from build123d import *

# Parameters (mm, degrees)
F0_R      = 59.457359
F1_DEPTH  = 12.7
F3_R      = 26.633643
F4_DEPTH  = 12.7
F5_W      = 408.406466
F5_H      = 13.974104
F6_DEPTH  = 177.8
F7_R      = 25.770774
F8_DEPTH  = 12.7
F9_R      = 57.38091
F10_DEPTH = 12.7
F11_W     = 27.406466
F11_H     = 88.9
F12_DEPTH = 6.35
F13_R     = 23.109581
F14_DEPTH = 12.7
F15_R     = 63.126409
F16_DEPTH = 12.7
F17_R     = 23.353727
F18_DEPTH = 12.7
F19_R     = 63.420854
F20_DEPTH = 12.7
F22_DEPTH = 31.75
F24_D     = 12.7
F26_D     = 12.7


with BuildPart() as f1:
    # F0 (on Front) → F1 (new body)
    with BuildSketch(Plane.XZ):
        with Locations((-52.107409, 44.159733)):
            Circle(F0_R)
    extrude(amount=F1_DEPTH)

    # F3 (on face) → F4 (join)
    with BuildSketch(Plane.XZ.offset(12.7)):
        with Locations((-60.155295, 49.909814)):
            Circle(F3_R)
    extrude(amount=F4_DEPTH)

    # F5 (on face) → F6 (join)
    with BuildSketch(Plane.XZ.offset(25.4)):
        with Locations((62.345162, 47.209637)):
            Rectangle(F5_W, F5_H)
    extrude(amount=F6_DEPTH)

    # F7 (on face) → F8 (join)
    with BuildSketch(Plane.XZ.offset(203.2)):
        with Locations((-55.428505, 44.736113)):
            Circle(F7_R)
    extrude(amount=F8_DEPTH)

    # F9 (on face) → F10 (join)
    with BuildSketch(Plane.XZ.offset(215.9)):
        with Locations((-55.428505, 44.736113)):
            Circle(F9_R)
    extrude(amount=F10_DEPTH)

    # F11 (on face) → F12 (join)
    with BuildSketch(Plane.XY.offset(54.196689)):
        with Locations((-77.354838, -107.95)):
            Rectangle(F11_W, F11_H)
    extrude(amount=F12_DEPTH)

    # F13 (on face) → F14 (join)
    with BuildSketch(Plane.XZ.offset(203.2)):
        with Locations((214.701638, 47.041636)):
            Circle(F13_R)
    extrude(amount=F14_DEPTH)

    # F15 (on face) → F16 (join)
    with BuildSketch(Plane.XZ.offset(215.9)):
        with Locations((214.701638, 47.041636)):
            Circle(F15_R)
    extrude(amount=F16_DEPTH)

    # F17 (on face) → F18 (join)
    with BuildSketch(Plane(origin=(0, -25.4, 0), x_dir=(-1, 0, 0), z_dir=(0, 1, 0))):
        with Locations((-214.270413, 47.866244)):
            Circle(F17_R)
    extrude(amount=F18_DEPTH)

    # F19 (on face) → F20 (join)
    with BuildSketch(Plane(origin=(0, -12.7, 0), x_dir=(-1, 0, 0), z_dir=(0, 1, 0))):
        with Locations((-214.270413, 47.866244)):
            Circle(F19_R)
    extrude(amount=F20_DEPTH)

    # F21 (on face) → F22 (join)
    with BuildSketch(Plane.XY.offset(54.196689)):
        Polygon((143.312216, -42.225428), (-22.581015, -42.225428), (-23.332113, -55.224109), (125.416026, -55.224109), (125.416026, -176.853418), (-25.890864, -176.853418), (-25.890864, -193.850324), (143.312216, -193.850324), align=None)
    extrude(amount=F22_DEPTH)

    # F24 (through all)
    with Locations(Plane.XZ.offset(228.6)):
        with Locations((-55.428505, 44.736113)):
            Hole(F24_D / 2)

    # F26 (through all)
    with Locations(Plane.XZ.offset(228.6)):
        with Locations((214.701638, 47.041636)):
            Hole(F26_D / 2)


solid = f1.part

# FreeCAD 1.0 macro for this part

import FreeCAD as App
import Part
import Sketcher
Q = App.Units.Quantity


def add_polygon(sketch, points):
    """Adds a closed chain of lines whose ends are joined by coincident constraints."""
    first, n = sketch.GeometryCount, len(points)
    for a, b in zip(points, points[1:] + points[:1]):
        sketch.addGeometry(Part.LineSegment(App.Vector(*a, 0), App.Vector(*b, 0)), False)
    for i in range(n):
        sketch.addConstraint(Sketcher.Constraint("Coincident", first + i, 2, first + (i + 1) % n, 1))

doc = App.newDocument("Part")
body = doc.addObject("PartDesign::Body", "Body")

# Sketch on XZ plane
sketch1 = body.newObject("Sketcher::SketchObject", "Sketch")
sketch1.AttachmentSupport = (doc.getObject("XZ_Plane"), [""])
sketch1.MapMode = "FlatFace"
sketch1.addGeometry(Part.Circle(App.Vector(-52, 44, 0), App.Vector(0, 0, 1), 59), False)
sketch1.addConstraint([
    Sketcher.Constraint("Diameter", 0, Q("118.914718 mm")),
    Sketcher.Constraint("DistanceX", 0, 3, -1, 1, Q("52.107409 mm")),
    Sketcher.Constraint("DistanceY", -1, 1, 0, 3, Q("44.159733 mm")),
])
pad1 = body.newObject("PartDesign::Pad", "Pad")
pad1.Profile = sketch1
pad1.Length = Q("0.5 in")

# Sketch on XZ plane
sketch2 = body.newObject("Sketcher::SketchObject", "Sketch001")
sketch2.AttachmentSupport = (doc.getObject("XZ_Plane"), [""])
sketch2.MapMode = "FlatFace"
sketch2.AttachmentOffset = App.Placement(App.Vector(0, 0, 0.5 * 25.4), App.Rotation())
sketch2.addGeometry(Part.Circle(App.Vector(-60, 50, 0), App.Vector(0, 0, 1), 27), False)
sketch2.addConstraint([
    Sketcher.Constraint("Diameter", 0, Q("53.267286 mm")),
    Sketcher.Constraint("DistanceX", 0, 3, -1, 1, Q("60.155295 mm")),
    Sketcher.Constraint("DistanceY", -1, 1, 0, 3, Q("49.909814 mm")),
])
pad2 = body.newObject("PartDesign::Pad", "Pad001")
pad2.Profile = sketch2
pad2.Length = Q("0.5 in")

# Sketch on XZ plane
sketch3 = body.newObject("Sketcher::SketchObject", "Sketch002")
sketch3.AttachmentSupport = (doc.getObject("XZ_Plane"), [""])
sketch3.MapMode = "FlatFace"
sketch3.AttachmentOffset = App.Placement(App.Vector(0, 0, 1 * 25.4), App.Rotation())
add_polygon(sketch3, [(-142, 54), (-142, 40), (267, 40), (267, 54)])  # lines 0-3
sketch3.addConstraint([
    Sketcher.Constraint("Vertical", 0),
    Sketcher.Constraint("Horizontal", 1),
    Sketcher.Constraint("Vertical", 2),
    Sketcher.Constraint("Horizontal", 3),
    Sketcher.Constraint("DistanceX", 1, 1, 1, 2, Q("408.406466 mm")),
    Sketcher.Constraint("DistanceY", 0, 2, 0, 1, Q("13.974104 mm")),
    Sketcher.Constraint("DistanceX", 0, 2, -1, 1, Q("141.858071 mm")),
    Sketcher.Constraint("DistanceY", -1, 1, 2, 2, Q("54.196689 mm")),
])
pad3 = body.newObject("PartDesign::Pad", "Pad002")
pad3.Profile = sketch3
pad3.Length = Q("7 in")

# Sketch on XZ plane
sketch4 = body.newObject("Sketcher::SketchObject", "Sketch003")
sketch4.AttachmentSupport = (doc.getObject("XZ_Plane"), [""])
sketch4.MapMode = "FlatFace"
sketch4.AttachmentOffset = App.Placement(App.Vector(0, 0, 8 * 25.4), App.Rotation())
sketch4.addGeometry(Part.Circle(App.Vector(-55, 45, 0), App.Vector(0, 0, 1), 26), False)
sketch4.addConstraint([
    Sketcher.Constraint("Diameter", 0, Q("51.541548 mm")),
    Sketcher.Constraint("DistanceX", 0, 3, -1, 1, Q("55.428505 mm")),
    Sketcher.Constraint("DistanceY", -1, 1, 0, 3, Q("44.736113 mm")),
])
pad4 = body.newObject("PartDesign::Pad", "Pad003")
pad4.Profile = sketch4
pad4.Length = Q("0.5 in")

# Sketch on XZ plane
sketch5 = body.newObject("Sketcher::SketchObject", "Sketch004")
sketch5.AttachmentSupport = (doc.getObject("XZ_Plane"), [""])
sketch5.MapMode = "FlatFace"
sketch5.AttachmentOffset = App.Placement(App.Vector(0, 0, 8.5 * 25.4), App.Rotation())
sketch5.addGeometry(Part.Circle(App.Vector(-55, 45, 0), App.Vector(0, 0, 1), 57), False)
sketch5.addConstraint([
    Sketcher.Constraint("Diameter", 0, Q("114.76182 mm")),
    Sketcher.Constraint("DistanceX", 0, 3, -1, 1, Q("55.428505 mm")),
    Sketcher.Constraint("DistanceY", -1, 1, 0, 3, Q("44.736113 mm")),
])
pad5 = body.newObject("PartDesign::Pad", "Pad004")
pad5.Profile = sketch5
pad5.Length = Q("0.5 in")

# Sketch on XY plane
sketch6 = body.newObject("Sketcher::SketchObject", "Sketch005")
sketch6.AttachmentSupport = (doc.getObject("XY_Plane"), [""])
sketch6.MapMode = "FlatFace"
sketch6.AttachmentOffset = App.Placement(App.Vector(0, 0, 54.196689), App.Rotation())
add_polygon(sketch6, [(-91, -64), (-91, -152), (-64, -152), (-64, -64)])  # lines 0-3
sketch6.addConstraint([
    Sketcher.Constraint("Vertical", 0),
    Sketcher.Constraint("Horizontal", 1),
    Sketcher.Constraint("Vertical", 2),
    Sketcher.Constraint("Horizontal", 3),
    Sketcher.Constraint("DistanceY", 0, 2, 0, 1, Q("3.5 in")),
    Sketcher.Constraint("DistanceY", 0, 2, -1, 1, Q("6 in")),
    Sketcher.Constraint("DistanceX", 1, 1, 1, 2, Q("27.406466 mm")),
    Sketcher.Constraint("DistanceX", 0, 2, -1, 1, Q("91.058071 mm")),
])
pad6 = body.newObject("PartDesign::Pad", "Pad005")
pad6.Profile = sketch6
pad6.Length = Q("0.25 in")

# Sketch on XZ plane
sketch7 = body.newObject("Sketcher::SketchObject", "Sketch006")
sketch7.AttachmentSupport = (doc.getObject("XZ_Plane"), [""])
sketch7.MapMode = "FlatFace"
sketch7.AttachmentOffset = App.Placement(App.Vector(0, 0, 8 * 25.4), App.Rotation())
sketch7.addGeometry(Part.Circle(App.Vector(215, 47, 0), App.Vector(0, 0, 1), 23), False)
sketch7.addConstraint([
    Sketcher.Constraint("Diameter", 0, Q("46.219162 mm")),
    Sketcher.Constraint("DistanceX", -1, 1, 0, 3, Q("214.701638 mm")),
    Sketcher.Constraint("DistanceY", -1, 1, 0, 3, Q("47.041636 mm")),
])
pad7 = body.newObject("PartDesign::Pad", "Pad006")
pad7.Profile = sketch7
pad7.Length = Q("0.5 in")

# Sketch on XZ plane
sketch8 = body.newObject("Sketcher::SketchObject", "Sketch007")
sketch8.AttachmentSupport = (doc.getObject("XZ_Plane"), [""])
sketch8.MapMode = "FlatFace"
sketch8.AttachmentOffset = App.Placement(App.Vector(0, 0, 8.5 * 25.4), App.Rotation())
sketch8.addGeometry(Part.Circle(App.Vector(215, 47, 0), App.Vector(0, 0, 1), 63), False)
sketch8.addConstraint([
    Sketcher.Constraint("Diameter", 0, Q("126.252818 mm")),
    Sketcher.Constraint("DistanceX", -1, 1, 0, 3, Q("214.701638 mm")),
    Sketcher.Constraint("DistanceY", -1, 1, 0, 3, Q("47.041636 mm")),
])
pad8 = body.newObject("PartDesign::Pad", "Pad007")
pad8.Profile = sketch8
pad8.Length = Q("0.5 in")

# Sketch on XZ plane
sketch9 = body.newObject("Sketcher::SketchObject", "Sketch008")
sketch9.AttachmentSupport = (doc.getObject("XZ_Plane"), [""])
sketch9.MapMode = "FlatFace"
sketch9.AttachmentOffset = App.Placement(App.Vector(0, 0, 1 * 25.4), App.Rotation())
sketch9.addGeometry(Part.Circle(App.Vector(214, 48, 0), App.Vector(0, 0, 1), 23), False)
sketch9.addConstraint([
    Sketcher.Constraint("Diameter", 0, Q("46.707454 mm")),
    Sketcher.Constraint("DistanceX", -1, 1, 0, 3, Q("214.270413 mm")),
    Sketcher.Constraint("DistanceY", -1, 1, 0, 3, Q("47.866244 mm")),
])
pad9 = body.newObject("PartDesign::Pad", "Pad008")
pad9.Profile = sketch9
pad9.Length = Q("0.5 in")
pad9.Reversed = True

# Sketch on XZ plane
sketch10 = body.newObject("Sketcher::SketchObject", "Sketch009")
sketch10.AttachmentSupport = (doc.getObject("XZ_Plane"), [""])
sketch10.MapMode = "FlatFace"
sketch10.AttachmentOffset = App.Placement(App.Vector(0, 0, 0.5 * 25.4), App.Rotation())
sketch10.addGeometry(Part.Circle(App.Vector(214, 48, 0), App.Vector(0, 0, 1), 63), False)
sketch10.addConstraint([
    Sketcher.Constraint("Diameter", 0, Q("126.841708 mm")),
    Sketcher.Constraint("DistanceX", -1, 1, 0, 3, Q("214.270413 mm")),
    Sketcher.Constraint("DistanceY", -1, 1, 0, 3, Q("47.866244 mm")),
])
pad10 = body.newObject("PartDesign::Pad", "Pad009")
pad10.Profile = sketch10
pad10.Length = Q("0.5 in")
pad10.Reversed = True

# Sketch on XY plane
sketch11 = body.newObject("Sketcher::SketchObject", "Sketch010")
sketch11.AttachmentSupport = (doc.getObject("XY_Plane"), [""])
sketch11.MapMode = "FlatFace"
sketch11.AttachmentOffset = App.Placement(App.Vector(0, 0, 54.196689), App.Rotation())
add_polygon(sketch11, [(143, -42), (-23, -42), (-23, -55), (125, -55), (125, -177), (-26, -177), (-26, -194), (143, -194)])  # lines 0-7
sketch11.addConstraint([
    Sketcher.Constraint("Horizontal", 0),
    Sketcher.Constraint("Horizontal", 2),
    Sketcher.Constraint("Vertical", 3),
    Sketcher.Constraint("Horizontal", 4),
    Sketcher.Constraint("Vertical", 5),
    Sketcher.Constraint("Horizontal", 6),
    Sketcher.Constraint("Vertical", 7),
    Sketcher.Constraint("DistanceX", 0, 2, 0, 1, Q("165.893231 mm")),
    Sketcher.Constraint("DistanceX", 2, 1, 2, 2, Q("148.748139 mm")),
    Sketcher.Constraint("DistanceX", 4, 2, 4, 1, Q("151.30689 mm")),
    Sketcher.Constraint("DistanceX", 6, 1, 6, 2, Q("169.20308 mm")),
    Sketcher.Constraint("DistanceY", 3, 2, 3, 1, Q("121.629309 mm")),
    Sketcher.Constraint("DistanceY", 5, 2, 5, 1, Q("16.996906 mm")),
    Sketcher.Constraint("DistanceY", 7, 1, 7, 2, Q("151.624896 mm")),
    Sketcher.Constraint("DistanceY", 1, 2, -1, 1, Q("55.224109 mm")),
    Sketcher.Constraint("DistanceX", 0, 2, -1, 1, Q("22.581015 mm")),
])
pad11 = body.newObject("PartDesign::Pad", "Pad010")
pad11.Profile = sketch11
pad11.Length = Q("1.25 in")

# Sketch on XZ plane
sketch12 = body.newObject("Sketcher::SketchObject", "Sketch011")
sketch12.AttachmentSupport = (doc.getObject("XZ_Plane"), [""])
sketch12.MapMode = "FlatFace"
sketch12.AttachmentOffset = App.Placement(App.Vector(0, 0, 9 * 25.4), App.Rotation())
sketch12.addGeometry(Part.Circle(App.Vector(-55, 45, 0), App.Vector(0, 0, 1), 6), False)
sketch12.addConstraint([
    Sketcher.Constraint("Diameter", 0, Q("0.5 in")),
    Sketcher.Constraint("DistanceX", 0, 3, -1, 1, Q("55.428505 mm")),
    Sketcher.Constraint("DistanceY", -1, 1, 0, 3, Q("44.736113 mm")),
])
doc.recompute()
hole = body.newObject("PartDesign::Hole", "Hole")
hole.Profile = sketch12
hole.ThreadType = "None"
hole.Diameter = Q("0.5 in")
hole.DepthType = "ThroughAll"

# Sketch on XZ plane
sketch13 = body.newObject("Sketcher::SketchObject", "Sketch012")
sketch13.AttachmentSupport = (doc.getObject("XZ_Plane"), [""])
sketch13.MapMode = "FlatFace"
sketch13.AttachmentOffset = App.Placement(App.Vector(0, 0, 9 * 25.4), App.Rotation())
sketch13.addGeometry(Part.Circle(App.Vector(215, 47, 0), App.Vector(0, 0, 1), 6), False)
sketch13.addConstraint([
    Sketcher.Constraint("Diameter", 0, Q("0.5 in")),
    Sketcher.Constraint("DistanceX", -1, 1, 0, 3, Q("214.701638 mm")),
    Sketcher.Constraint("DistanceY", -1, 1, 0, 3, Q("47.041636 mm")),
])
doc.recompute()
hole2 = body.newObject("PartDesign::Hole", "Hole001")
hole2.Profile = sketch13
hole2.ThreadType = "None"
hole2.Diameter = Q("0.5 in")
hole2.DepthType = "ThroughAll"

doc.recompute()
